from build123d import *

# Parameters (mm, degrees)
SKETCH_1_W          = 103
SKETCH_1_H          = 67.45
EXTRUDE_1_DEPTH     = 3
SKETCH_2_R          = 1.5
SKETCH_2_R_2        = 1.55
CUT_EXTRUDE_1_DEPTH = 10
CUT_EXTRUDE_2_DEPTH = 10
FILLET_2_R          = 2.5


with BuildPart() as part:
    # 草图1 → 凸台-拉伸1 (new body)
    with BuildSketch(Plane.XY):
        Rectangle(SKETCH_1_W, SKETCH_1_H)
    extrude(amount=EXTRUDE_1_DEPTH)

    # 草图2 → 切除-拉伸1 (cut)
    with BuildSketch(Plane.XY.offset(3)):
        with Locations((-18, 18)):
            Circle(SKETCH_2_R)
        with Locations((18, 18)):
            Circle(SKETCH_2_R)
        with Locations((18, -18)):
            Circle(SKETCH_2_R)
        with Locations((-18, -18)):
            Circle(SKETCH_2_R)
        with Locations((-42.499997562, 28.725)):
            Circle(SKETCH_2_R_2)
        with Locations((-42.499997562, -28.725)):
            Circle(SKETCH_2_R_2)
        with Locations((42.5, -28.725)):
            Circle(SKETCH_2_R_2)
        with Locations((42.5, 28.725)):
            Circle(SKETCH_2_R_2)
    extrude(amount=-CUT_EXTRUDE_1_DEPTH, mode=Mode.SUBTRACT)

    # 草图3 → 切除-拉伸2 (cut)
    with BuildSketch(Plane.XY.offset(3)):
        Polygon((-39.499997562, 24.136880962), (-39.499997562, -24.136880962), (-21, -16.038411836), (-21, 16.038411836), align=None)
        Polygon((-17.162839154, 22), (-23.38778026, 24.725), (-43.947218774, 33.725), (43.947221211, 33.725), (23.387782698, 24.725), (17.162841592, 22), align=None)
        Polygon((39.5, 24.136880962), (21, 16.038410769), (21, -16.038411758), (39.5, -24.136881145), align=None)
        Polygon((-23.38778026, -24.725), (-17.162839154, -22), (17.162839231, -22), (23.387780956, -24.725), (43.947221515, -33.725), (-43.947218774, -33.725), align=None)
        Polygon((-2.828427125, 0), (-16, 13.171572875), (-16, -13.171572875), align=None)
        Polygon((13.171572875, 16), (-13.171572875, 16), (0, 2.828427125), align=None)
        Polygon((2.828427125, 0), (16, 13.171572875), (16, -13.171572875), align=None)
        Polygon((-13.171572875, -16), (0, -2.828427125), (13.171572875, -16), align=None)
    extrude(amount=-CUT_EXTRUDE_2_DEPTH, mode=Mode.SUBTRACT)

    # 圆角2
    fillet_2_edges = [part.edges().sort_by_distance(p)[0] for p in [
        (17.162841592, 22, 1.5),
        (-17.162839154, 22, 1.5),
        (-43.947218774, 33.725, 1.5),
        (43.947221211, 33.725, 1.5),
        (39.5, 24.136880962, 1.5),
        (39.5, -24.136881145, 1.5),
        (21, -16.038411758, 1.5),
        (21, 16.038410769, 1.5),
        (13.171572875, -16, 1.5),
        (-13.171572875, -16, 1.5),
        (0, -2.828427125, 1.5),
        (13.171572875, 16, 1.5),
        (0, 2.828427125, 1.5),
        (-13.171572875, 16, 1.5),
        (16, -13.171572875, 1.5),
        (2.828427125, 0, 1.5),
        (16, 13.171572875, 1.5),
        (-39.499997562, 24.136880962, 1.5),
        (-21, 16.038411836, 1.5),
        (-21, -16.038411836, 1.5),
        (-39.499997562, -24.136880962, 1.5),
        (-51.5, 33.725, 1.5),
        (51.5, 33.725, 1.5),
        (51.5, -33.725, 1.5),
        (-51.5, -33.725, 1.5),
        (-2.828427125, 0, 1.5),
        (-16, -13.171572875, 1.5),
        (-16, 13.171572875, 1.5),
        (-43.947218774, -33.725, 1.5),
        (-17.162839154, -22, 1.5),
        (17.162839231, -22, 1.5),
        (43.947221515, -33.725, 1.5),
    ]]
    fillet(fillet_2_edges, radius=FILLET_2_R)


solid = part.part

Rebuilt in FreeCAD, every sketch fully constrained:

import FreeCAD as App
import Part
import Sketcher

V = App.Vector


def edges_at(feature, points):
    """Names of the edges that pass closest to the given points."""
    edges = feature.Shape.Edges
    near = lambda p: min(range(len(edges)), key=lambda i: edges[i].distToShape(Part.Vertex(*p))[0])
    return sorted({f"Edge{near(p) + 1}" for p in points})


def add_polygon(sketch, points):
    """Adds a closed chain of lines whose ends are joined by coincident constraints."""
    first, n = sketch.GeometryCount, len(points)
    for a, b in zip(points, points[1:] + points[:1]):
        sketch.addGeometry(Part.LineSegment(App.Vector(*a, 0), App.Vector(*b, 0)), False)
    for i in range(n):
        sketch.addConstraint(Sketcher.Constraint("Coincident", first + i, 2, first + (i + 1) % n, 1))

doc = App.newDocument("Part")
body = doc.addObject("PartDesign::Body", "Body")

sketch1 = body.newObject("Sketcher::SketchObject", "Sketch")
sketch1.AttachmentSupport = (doc.getObject("XY_Plane"), [""])
sketch1.MapMode = "FlatFace"
add_polygon(sketch1, [(-51.5, 33.725), (-51.5, -33.725), (51.5, -33.725), (51.5, 33.725)])
sketch1.addConstraint([
    Sketcher.Constraint("Vertical", 0),
    Sketcher.Constraint("Horizontal", 1),
    Sketcher.Constraint("Vertical", 2),
    Sketcher.Constraint("Horizontal", 3),
    Sketcher.Constraint("Symmetric", 0, 2, 2, 2, -1, 1),
    Sketcher.Constraint("DistanceX", 1, 1, 1, 2, 103.0),
    Sketcher.Constraint("DistanceY", 0, 2, 0, 1, 67.45),
])
pad1 = body.newObject("PartDesign::Pad", "Pad")
pad1.Profile = sketch1
pad1.Length = 3

sketch2 = body.newObject("Sketcher::SketchObject", "Sketch001")
sketch2.AttachmentSupport = (doc.getObject("XY_Plane"), [""])
sketch2.MapMode = "FlatFace"
sketch2.AttachmentOffset = App.Placement(V(0, 0, 3), App.Rotation())
sketch2.addGeometry([
    Part.Circle(V(-18, 18, 0), V(0, 0, 1), 1.5),
    Part.Circle(V(18, 18, 0), V(0, 0, 1), 1.5),
    Part.Circle(V(18, -18, 0), V(0, 0, 1), 1.5),
    Part.Circle(V(-18, -18, 0), V(0, 0, 1), 1.5),
    Part.Circle(V(-42.499998, 28.725, 0), V(0, 0, 1), 1.55),
    Part.Circle(V(-42.499998, -28.725, 0), V(0, 0, 1), 1.55),
    Part.Circle(V(42.5, -28.725, 0), V(0, 0, 1), 1.55),
    Part.Circle(V(42.5, 28.725, 0), V(0, 0, 1), 1.55),
], False)
sketch2.addConstraint([
    Sketcher.Constraint("Equal", 0, 1),
    Sketcher.Constraint("Equal", 1, 2),
    Sketcher.Constraint("Equal", 2, 3),
    Sketcher.Constraint("Equal", 4, 5),
    Sketcher.Constraint("Equal", 5, 6),
    Sketcher.Constraint("Equal", 6, 7),
    Sketcher.Constraint("Symmetric", 0, 3, 2, 3, -1, 1),
    Sketcher.Constraint("Symmetric", 1, 3, 3, 3, -1, 1),
    Sketcher.Constraint("Symmetric", 4, 3, 6, 3, -1, 1),
    Sketcher.Constraint("Symmetric", 5, 3, 7, 3, -1, 1),
    Sketcher.Constraint("Symmetric", 0, 3, 1, 3, -2),
    Sketcher.Constraint("Symmetric", 5, 3, 6, 3, -2),
    Sketcher.Constraint("Diameter", 0, 3.0),
    Sketcher.Constraint("Diameter", 4, 3.1),
    Sketcher.Constraint("DistanceX", 0, 3, -1, 1, 18.0),
    Sketcher.Constraint("DistanceY", -1, 1, 0, 3, 18.0),
    Sketcher.Constraint("DistanceX", -1, 1, 6, 3, 42.5),
    Sketcher.Constraint("DistanceY", 5, 3, 4, 3, 57.45),
])
pocket1 = body.newObject("PartDesign::Pocket", "Pocket")
pocket1.Profile = sketch2
pocket1.Length = 10

sketch3 = body.newObject("Sketcher::SketchObject", "Sketch002")
sketch3.AttachmentSupport = (doc.getObject("XY_Plane"), [""])
sketch3.MapMode = "FlatFace"
sketch3.AttachmentOffset = App.Placement(V(0, 0, 3), App.Rotation())
add_polygon(sketch3, [(-39.499998, 24.136881), (-39.499998, -24.136881), (-21, -16.038412), (-21, 16.038412)])
add_polygon(sketch3, [(-23.38778, 24.725), (-17.162839, 22), (17.162842, 22), (23.387783, 24.725), (43.947221, 33.725), (-43.947219, 33.725)])
add_polygon(sketch3, [(39.5, 24.136881), (21, 16.038411), (21, -16.038412), (39.5, -24.136881)])
add_polygon(sketch3, [(-17.162839, -22), (-23.38778, -24.725), (-43.947219, -33.725), (43.947222, -33.725), (23.387781, -24.725), (17.162839, -22)])
add_polygon(sketch3, [(-2.828427, 0), (-16, 13.171573), (-16, -13.171573)])
add_polygon(sketch3, [(13.171573, 16), (-13.171573, 16), (0, 2.828427)])
add_polygon(sketch3, [(16, 13.171573), (2.828427, 0), (16, -13.171573)])
add_polygon(sketch3, [(0, -2.828427), (-13.171573, -16), (13.171573, -16)])
sketch3.addConstraint([
    Sketcher.Constraint("Vertical", 0),
    Sketcher.Constraint("Vertical", 2),
    Sketcher.Constraint("Horizontal", 5),
    Sketcher.Constraint("Horizontal", 8),
    Sketcher.Constraint("Vertical", 11),
    Sketcher.Constraint("Vertical", 13),
    Sketcher.Constraint("Horizontal", 16),
    Sketcher.Constraint("Horizontal", 19),
    Sketcher.Constraint("Vertical", 21),
    Sketcher.Constraint("Horizontal", 23),
    Sketcher.Constraint("Vertical", 28),
    Sketcher.Constraint("Horizontal", 30),
    Sketcher.Constraint("Symmetric", 1, 2, 10, 2, -1, 1),
    Sketcher.Constraint("Symmetric", 3, 2, 12, 2, -1, 1),
    Sketcher.Constraint("Symmetric", 6, 2, 14, 2, -1, 1),
    Sketcher.Constraint("Symmetric", 7, 2, 15, 2, -1, 1),
    Sketcher.Constraint("Symmetric", 9, 2, 17, 2, -1, 1),
    Sketcher.Constraint("Symmetric", 4, 2, 18, 2, -1, 1),
    Sketcher.Constraint("Symmetric", 22, 2, 26, 2, -1, 1),
    Sketcher.Constraint("Symmetric", 20, 2, 27, 2, -1, 1),
    Sketcher.Constraint("Symmetric", 25, 2, 29, 2, -1, 1),
    Sketcher.Constraint("Symmetric", 24, 2, 31, 2, -1, 1),
    Sketcher.Constraint("Symmetric", 6, 2, 9, 2, -2),
    Sketcher.Constraint("PointOnObject", 22, 2, -1),
    Sketcher.Constraint("PointOnObject", 24, 2, -2),
    Sketcher.Constraint("Parallel", 3, 4),
    Sketcher.Constraint("Parallel", 1, 6),
    Sketcher.Constraint("Parallel", 6, 7),
    Sketcher.Constraint("Parallel", 4, 9),
    Sketcher.Constraint("Parallel", 7, 10),
    Sketcher.Constraint("Parallel", 9, 12),
    Sketcher.Constraint("Parallel", 10, 14),
    Sketcher.Constraint("Parallel", 12, 17),
    Sketcher.Constraint("Perpendicular", 20, 22),
    Sketcher.Constraint("Perpendicular", 22, 24),
    Sketcher.Constraint("Perpendicular", 24, 25),
    Sketcher.Constraint("Parallel", 25, 26),
    Sketcher.Constraint("Perpendicular", 29, 31),
    Sketcher.Constraint("Horizontal", 2, 2, 10, 2),
    Sketcher.Constraint("Horizontal", 0, 2, 12, 2),
    Sketcher.Constraint("Horizontal", 21, 2, 27, 2),
    Sketcher.Constraint("Equal", 30, 21),
    Sketcher.Constraint("DistanceX", 1, 2, -1, 1, 21.0),
    Sketcher.Constraint("DistanceY", -1, 1, 4, 2, 22.0),
    Sketcher.Constraint("DistanceX", 20, 2, -1, 1, 16.0),
    Sketcher.Constraint("DistanceY", -1, 1, 23, 2, 16.0),
    Sketcher.Constraint("DistanceY", 6, 2, 7, 2, 9.0),
    Sketcher.Constraint("DistanceX", -1, 1, 12, 2, 39.5),
    Sketcher.Constraint("DistanceY", -1, 1, 6, 2, 24.725),
    Sketcher.Constraint("DistanceX", 5, 1, 5, 2, 34.325681),
    Sketcher.Constraint("DistanceX", 8, 2, 8, 1, 87.89444),
    Sketcher.Constraint("DistanceY", 0, 2, 0, 1, 48.273762),
    Sketcher.Constraint("DistanceX", 23, 2, 23, 1, 26.343146),
])
pocket2 = body.newObject("PartDesign::Pocket", "Pocket001")
pocket2.Profile = sketch3
pocket2.Length = 10
doc.recompute()

fillet = body.newObject("PartDesign::Fillet", "Fillet")
fillet.Base = (pocket2, edges_at(pocket2, [
    (17.163, 22, 1.5),
    (-17.163, 22, 1.5),
    (-43.947, 33.725, 1.5),
    (43.947, 33.725, 1.5),
    (39.5, 24.137, 1.5),
    (39.5, -24.137, 1.5),
    (21, -16.038, 1.5),
    (21, 16.038, 1.5),
    (13.172, -16, 1.5),
    (-13.172, -16, 1.5),
    (0, -2.828, 1.5),
    (13.172, 16, 1.5),
    (0, 2.828, 1.5),
    (-13.172, 16, 1.5),
    (16, -13.172, 1.5),
    (2.828, 0, 1.5),
    (16, 13.172, 1.5),
    (-39.5, 24.137, 1.5),
    (-21, 16.038, 1.5),
    (-21, -16.038, 1.5),
    (-39.5, -24.137, 1.5),
    (-51.5, 33.725, 1.5),
    (51.5, 33.725, 1.5),
    (51.5, -33.725, 1.5),
    (-51.5, -33.725, 1.5),
    (-2.828, 0, 1.5),
    (-16, -13.172, 1.5),
    (-16, 13.172, 1.5),
    (-43.947, -33.725, 1.5),
    (-17.163, -22, 1.5),
    (17.163, -22, 1.5),
    (43.947, -33.725, 1.5),
]))
fillet.Radius = 2.5

doc.recompute()
